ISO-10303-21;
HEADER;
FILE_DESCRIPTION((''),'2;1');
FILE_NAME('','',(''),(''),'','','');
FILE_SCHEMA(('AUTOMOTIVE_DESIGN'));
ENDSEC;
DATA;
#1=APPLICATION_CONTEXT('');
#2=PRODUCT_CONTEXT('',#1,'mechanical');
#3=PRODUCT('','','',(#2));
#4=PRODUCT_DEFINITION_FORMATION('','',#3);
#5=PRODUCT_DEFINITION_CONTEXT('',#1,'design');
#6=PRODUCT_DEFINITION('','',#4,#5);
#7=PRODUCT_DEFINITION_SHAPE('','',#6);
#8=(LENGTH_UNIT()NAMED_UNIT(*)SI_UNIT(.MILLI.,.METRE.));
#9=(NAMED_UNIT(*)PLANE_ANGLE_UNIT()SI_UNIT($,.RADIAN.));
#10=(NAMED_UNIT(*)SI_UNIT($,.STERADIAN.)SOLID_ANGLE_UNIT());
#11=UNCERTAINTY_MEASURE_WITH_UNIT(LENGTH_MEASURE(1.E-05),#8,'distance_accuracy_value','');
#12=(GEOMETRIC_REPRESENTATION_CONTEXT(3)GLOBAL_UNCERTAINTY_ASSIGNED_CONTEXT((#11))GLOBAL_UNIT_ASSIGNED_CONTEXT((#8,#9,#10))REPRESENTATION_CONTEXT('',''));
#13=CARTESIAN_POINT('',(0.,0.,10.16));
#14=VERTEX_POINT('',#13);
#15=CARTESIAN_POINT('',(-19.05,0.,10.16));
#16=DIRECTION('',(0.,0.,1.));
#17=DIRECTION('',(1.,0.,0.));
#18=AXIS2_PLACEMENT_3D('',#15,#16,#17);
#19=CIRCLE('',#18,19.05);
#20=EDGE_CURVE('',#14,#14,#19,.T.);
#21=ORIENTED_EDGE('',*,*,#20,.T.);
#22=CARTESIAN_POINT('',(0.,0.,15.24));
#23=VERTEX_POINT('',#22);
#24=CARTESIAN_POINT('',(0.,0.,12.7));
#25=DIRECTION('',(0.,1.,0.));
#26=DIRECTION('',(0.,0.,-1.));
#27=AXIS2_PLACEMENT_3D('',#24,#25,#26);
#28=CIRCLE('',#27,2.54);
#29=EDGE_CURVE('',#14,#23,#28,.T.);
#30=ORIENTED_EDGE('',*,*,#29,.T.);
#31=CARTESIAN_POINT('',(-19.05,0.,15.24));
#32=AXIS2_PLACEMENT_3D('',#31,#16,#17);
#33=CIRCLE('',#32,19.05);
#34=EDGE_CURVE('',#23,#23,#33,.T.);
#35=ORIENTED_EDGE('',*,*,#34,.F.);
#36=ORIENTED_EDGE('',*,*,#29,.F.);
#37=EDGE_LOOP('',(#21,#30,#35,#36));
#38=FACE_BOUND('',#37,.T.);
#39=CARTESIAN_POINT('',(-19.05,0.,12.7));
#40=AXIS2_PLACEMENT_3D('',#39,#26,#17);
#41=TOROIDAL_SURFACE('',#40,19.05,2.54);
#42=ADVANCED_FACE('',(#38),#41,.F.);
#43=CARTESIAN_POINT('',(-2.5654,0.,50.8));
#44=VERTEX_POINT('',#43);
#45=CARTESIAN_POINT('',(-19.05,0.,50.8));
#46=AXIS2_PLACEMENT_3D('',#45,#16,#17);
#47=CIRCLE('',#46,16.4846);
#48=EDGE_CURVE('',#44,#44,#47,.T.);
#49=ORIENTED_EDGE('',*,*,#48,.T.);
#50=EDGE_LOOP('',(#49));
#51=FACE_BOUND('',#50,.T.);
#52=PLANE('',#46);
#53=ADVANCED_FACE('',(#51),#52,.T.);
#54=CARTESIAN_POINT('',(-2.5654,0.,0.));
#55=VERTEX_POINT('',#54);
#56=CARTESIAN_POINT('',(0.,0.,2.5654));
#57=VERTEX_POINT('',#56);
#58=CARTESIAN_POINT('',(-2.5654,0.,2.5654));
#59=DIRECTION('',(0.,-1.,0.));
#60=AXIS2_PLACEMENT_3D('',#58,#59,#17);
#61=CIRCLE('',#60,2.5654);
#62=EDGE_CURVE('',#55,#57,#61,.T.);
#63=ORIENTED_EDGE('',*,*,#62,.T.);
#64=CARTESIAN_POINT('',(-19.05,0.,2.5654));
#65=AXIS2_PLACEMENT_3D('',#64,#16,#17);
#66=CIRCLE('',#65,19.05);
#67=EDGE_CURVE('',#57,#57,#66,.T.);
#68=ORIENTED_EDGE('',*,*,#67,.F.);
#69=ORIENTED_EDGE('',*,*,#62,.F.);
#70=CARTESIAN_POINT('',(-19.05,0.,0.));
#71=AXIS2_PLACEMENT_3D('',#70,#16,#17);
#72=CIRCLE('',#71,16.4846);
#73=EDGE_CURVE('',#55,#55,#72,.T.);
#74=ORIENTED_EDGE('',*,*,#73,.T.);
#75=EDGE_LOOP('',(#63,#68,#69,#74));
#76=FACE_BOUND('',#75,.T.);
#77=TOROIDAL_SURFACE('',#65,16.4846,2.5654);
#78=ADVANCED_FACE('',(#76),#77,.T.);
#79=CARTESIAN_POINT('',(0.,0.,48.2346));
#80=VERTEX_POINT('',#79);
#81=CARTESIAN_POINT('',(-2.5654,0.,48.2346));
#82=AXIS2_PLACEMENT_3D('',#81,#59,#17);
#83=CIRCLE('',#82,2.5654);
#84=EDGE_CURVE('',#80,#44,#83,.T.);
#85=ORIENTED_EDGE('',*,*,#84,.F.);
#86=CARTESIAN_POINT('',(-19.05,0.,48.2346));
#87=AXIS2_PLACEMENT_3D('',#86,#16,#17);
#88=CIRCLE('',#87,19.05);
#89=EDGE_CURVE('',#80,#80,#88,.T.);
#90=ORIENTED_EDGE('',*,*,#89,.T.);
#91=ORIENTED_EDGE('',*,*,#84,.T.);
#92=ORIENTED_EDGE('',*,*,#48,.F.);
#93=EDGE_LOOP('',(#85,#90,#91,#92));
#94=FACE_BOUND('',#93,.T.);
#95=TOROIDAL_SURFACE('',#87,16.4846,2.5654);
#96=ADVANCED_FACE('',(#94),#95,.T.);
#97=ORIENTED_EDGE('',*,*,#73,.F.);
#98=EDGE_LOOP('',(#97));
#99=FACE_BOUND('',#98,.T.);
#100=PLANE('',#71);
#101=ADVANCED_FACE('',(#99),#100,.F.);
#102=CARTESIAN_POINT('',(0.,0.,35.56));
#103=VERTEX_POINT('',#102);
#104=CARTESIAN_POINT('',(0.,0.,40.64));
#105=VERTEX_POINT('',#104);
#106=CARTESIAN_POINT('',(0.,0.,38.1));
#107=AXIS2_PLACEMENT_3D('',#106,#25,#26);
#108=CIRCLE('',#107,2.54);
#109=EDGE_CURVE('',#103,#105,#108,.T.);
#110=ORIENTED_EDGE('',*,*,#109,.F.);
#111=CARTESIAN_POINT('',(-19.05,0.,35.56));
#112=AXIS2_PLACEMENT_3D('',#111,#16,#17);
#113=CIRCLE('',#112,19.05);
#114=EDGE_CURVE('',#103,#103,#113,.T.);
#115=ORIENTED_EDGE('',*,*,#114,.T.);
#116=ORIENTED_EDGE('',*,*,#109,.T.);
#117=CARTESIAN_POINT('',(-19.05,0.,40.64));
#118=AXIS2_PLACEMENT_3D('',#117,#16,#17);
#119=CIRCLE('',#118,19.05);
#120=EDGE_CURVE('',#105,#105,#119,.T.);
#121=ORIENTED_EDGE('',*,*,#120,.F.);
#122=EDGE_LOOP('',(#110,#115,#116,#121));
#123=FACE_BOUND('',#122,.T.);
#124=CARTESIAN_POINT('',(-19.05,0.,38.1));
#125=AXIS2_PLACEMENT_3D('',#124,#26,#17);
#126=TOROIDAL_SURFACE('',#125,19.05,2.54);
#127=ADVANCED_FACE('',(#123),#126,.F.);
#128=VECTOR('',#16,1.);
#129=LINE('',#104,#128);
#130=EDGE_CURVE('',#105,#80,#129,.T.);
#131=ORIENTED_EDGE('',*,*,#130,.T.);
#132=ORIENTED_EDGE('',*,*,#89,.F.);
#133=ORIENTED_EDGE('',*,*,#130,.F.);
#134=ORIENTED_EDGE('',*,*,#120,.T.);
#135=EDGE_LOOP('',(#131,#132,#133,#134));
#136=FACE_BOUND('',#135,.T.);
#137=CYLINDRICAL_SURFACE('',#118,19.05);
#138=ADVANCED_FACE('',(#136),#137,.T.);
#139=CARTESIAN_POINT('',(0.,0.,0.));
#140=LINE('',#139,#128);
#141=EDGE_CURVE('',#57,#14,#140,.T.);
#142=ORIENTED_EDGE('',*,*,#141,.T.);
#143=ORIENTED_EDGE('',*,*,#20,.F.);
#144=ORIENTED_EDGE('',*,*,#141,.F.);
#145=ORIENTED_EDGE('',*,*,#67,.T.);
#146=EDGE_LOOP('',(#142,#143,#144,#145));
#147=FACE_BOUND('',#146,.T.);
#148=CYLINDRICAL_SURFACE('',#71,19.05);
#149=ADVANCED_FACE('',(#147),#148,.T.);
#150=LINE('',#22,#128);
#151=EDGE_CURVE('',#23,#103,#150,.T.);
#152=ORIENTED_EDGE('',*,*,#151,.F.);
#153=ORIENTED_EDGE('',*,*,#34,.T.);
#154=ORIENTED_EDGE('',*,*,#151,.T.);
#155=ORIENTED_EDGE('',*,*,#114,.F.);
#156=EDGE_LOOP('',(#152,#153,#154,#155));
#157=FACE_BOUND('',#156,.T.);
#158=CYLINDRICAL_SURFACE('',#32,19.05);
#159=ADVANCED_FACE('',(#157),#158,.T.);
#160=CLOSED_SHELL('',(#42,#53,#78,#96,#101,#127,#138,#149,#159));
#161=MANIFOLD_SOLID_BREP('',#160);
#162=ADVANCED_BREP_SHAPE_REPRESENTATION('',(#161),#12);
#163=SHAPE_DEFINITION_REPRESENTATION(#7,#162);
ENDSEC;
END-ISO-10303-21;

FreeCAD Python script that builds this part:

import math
import FreeCAD as App
import Part
import Sketcher
Q = App.Units.Quantity


def edges_at(feature, points):
    """Names of the edges that pass closest to the given points."""
    edges = feature.Shape.Edges
    near = lambda p: min(range(len(edges)), key=lambda i: edges[i].distToShape(Part.Vertex(*p))[0])
    return sorted({f"Edge{near(p) + 1}" for p in points})

doc = App.newDocument("Part")
body = doc.addObject("PartDesign::Body", "Body")

# Sketch on XZ plane
sketch1 = body.newObject("Sketcher::SketchObject", "Sketch")
sketch1.AttachmentSupport = (doc.getObject("XZ_Plane"), [""])
sketch1.MapMode = "FlatFace"
sketch1.addGeometry([
    Part.LineSegment(App.Vector(-19.1, 0, 0), App.Vector(0, 0, 0)),  # 0
    Part.LineSegment(App.Vector(0, 0, 0), App.Vector(0, 10.2, 0)),  # 1
    Part.ArcOfCircle(Part.Circle(App.Vector(0, 12.7, 0), App.Vector(0, 0, 1), 2.5), math.radians(90), math.radians(270)),  # 2
    Part.LineSegment(App.Vector(0, 15.2, 0), App.Vector(0, 35.6, 0)),  # 3
    Part.ArcOfCircle(Part.Circle(App.Vector(0, 38.1, 0), App.Vector(0, 0, 1), 2.5), math.radians(90), math.radians(270)),  # 4
    Part.LineSegment(App.Vector(0, 40.6, 0), App.Vector(0, 50.8, 0)),  # 5
    Part.LineSegment(App.Vector(0, 50.8, 0), App.Vector(-19.1, 50.8, 0)),  # 6
    Part.LineSegment(App.Vector(-19.1, 50.8, 0), App.Vector(-19.1, 0, 0)),  # 7
], False)
sketch1.addGeometry(Part.LineSegment(App.Vector(-19.1, 0, 0), App.Vector(-19.1, 50.8, 0)), True)  # axis
sketch1.addConstraint([
    Sketcher.Constraint("Coincident", 0, 2, 1, 1),
    Sketcher.Constraint("Coincident", 1, 2, 2, 2),
    Sketcher.Constraint("Coincident", 2, 1, 3, 1),
    Sketcher.Constraint("Coincident", 3, 2, 4, 2),
    Sketcher.Constraint("Coincident", 4, 1, 5, 1),
    Sketcher.Constraint("Coincident", 5, 2, 6, 1),
    Sketcher.Constraint("Coincident", 6, 2, 7, 1),
    Sketcher.Constraint("Coincident", 7, 2, 0, 1),
    Sketcher.Constraint("Horizontal", 0),
    Sketcher.Constraint("Vertical", 1),
    Sketcher.Constraint("Vertical", 3),
    Sketcher.Constraint("Vertical", 5),
    Sketcher.Constraint("Horizontal", 6),
    Sketcher.Constraint("Vertical", 7),
    Sketcher.Constraint("Vertical", 8),
    Sketcher.Constraint("Coincident", 0, 2, -1, 1),
    Sketcher.Constraint("Coincident", 8, 1, 7, 2),
    Sketcher.Constraint("Equal", 2, 4),
    Sketcher.Constraint("PointOnObject", 2, 3, -2),
    Sketcher.Constraint("PointOnObject", 4, 3, -2),
    Sketcher.Constraint("PointOnObject", 2, 1, -2),
    Sketcher.Constraint("PointOnObject", 4, 1, -2),
    Sketcher.Constraint("Horizontal", 5, 2, 8, 2),
    Sketcher.Constraint("Equal", 1, 5),
    Sketcher.Constraint("Radius", 2, Q("0.1 in")),
    Sketcher.Constraint("DistanceY", 7, 2, 7, 1, Q("2 in")),
    Sketcher.Constraint("DistanceY", 1, 1, 1, 2, Q("0.4 in")),
    Sketcher.Constraint("DistanceX", 0, 1, 0, 2, Q("0.75 in")),
])
revolution = body.newObject("PartDesign::Revolution", "Revolution")
revolution.Profile = sketch1
revolution.ReferenceAxis = (sketch1, ["Axis0"])
revolution.Angle = 360
doc.recompute()

fillet = body.newObject("PartDesign::Fillet", "Fillet")
fillet.Base = (revolution, edges_at(revolution, [(-38.1, 0, 50.8), (-38.1, 0, 0)]))
fillet.Radius = Q("0.101 in")

doc.recompute()
